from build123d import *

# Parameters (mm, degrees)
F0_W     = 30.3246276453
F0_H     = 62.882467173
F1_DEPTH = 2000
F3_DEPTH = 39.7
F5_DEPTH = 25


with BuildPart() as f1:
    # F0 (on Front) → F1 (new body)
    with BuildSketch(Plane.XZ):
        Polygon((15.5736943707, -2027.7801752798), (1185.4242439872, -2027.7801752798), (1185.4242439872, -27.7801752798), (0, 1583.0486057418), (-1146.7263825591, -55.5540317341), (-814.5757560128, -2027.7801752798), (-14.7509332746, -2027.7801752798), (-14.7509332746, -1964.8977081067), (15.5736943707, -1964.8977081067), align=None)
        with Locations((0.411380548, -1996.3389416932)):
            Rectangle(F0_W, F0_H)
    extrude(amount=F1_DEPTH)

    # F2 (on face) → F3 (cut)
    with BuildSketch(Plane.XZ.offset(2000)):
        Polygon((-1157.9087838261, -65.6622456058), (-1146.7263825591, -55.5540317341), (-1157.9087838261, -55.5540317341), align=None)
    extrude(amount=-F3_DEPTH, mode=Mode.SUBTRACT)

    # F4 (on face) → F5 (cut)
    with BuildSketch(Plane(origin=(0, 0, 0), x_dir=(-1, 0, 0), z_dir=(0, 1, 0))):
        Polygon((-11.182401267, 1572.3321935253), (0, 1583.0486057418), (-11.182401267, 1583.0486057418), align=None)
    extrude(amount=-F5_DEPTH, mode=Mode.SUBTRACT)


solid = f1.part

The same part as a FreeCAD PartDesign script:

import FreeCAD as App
import Part
import Sketcher
from FreeCAD import Vector
Q = App.Units.Quantity

doc = App.newDocument("Part")
body = doc.addObject("PartDesign::Body", "Body")

# Sketch on XZ plane
sketch1 = body.newObject("Sketcher::SketchObject", "Sketch")
sketch1.AttachmentSupport = (doc.getObject("XZ_Plane"), [""])
sketch1.MapMode = "FlatFace"
sketch1.addGeometry(Part.LineSegment(Vector(1185, -2028, 0), Vector(1185, -28, 0)), False)
sketch1.addGeometry(Part.LineSegment(Vector(1185, -28, 0), Vector(0, 1583, 0)), False)
sketch1.addGeometry(Part.LineSegment(Vector(0, 1583, 0), Vector(-1147, -56, 0)), False)
sketch1.addGeometry(Part.LineSegment(Vector(-1147, -56, 0), Vector(-815, -2028, 0)), False)
sketch1.addGeometry(Part.LineSegment(Vector(-815, -2028, 0), Vector(1185, -2028, 0)), False)
sketch1.addConstraint(Sketcher.Constraint("Coincident", 0, 2, 1, 1))
sketch1.addConstraint(Sketcher.Constraint("Coincident", 1, 2, 2, 1))
sketch1.addConstraint(Sketcher.Constraint("Coincident", 2, 2, 3, 1))
sketch1.addConstraint(Sketcher.Constraint("Coincident", 3, 2, 4, 1))
sketch1.addConstraint(Sketcher.Constraint("Coincident", 4, 2, 0, 1))
sketch1.addConstraint(Sketcher.Constraint("Vertical", 0))
sketch1.addConstraint(Sketcher.Constraint("Horizontal", 4))
sketch1.addConstraint(Sketcher.Constraint("PointOnObject", 1, 2, -2))
sketch1.addConstraint(Sketcher.Constraint("Equal", 4, 0))
sketch1.addConstraint(Sketcher.Constraint("Equal", 1, 2))
sketch1.addConstraint(Sketcher.Constraint("Equal", 2, 3))
sketch1.addConstraint(Sketcher.Constraint("DistanceX", 4, 1, 4, 2, Q("2000 mm")))
sketch1.addConstraint(Sketcher.Constraint("Distance", 1, Q("2000 mm")))
sketch1.addConstraint(Sketcher.Constraint("DistanceY", 2, 2, -1, 1, Q("55.554032 mm")))
sketch1.addConstraint(Sketcher.Constraint("DistanceY", 0, 2, 1, 2, Q("1610.828781 mm")))
pad1 = body.newObject("PartDesign::Pad", "Pad")
pad1.Profile = sketch1
pad1.Length = 2000

# Sketch on XZ plane
sketch2 = body.newObject("Sketcher::SketchObject", "Sketch001")
sketch2.AttachmentSupport = (doc.getObject("XZ_Plane"), [""])
sketch2.MapMode = "FlatFace"
sketch2.AttachmentOffset = App.Placement(Vector(0, 0, 2000), App.Rotation())
sketch2.addGeometry(Part.LineSegment(Vector(-1158, -66, 0), Vector(-1147, -56, 0)), False)
sketch2.addGeometry(Part.LineSegment(Vector(-1147, -56, 0), Vector(-1158, -56, 0)), False)
sketch2.addGeometry(Part.LineSegment(Vector(-1158, -56, 0), Vector(-1158, -66, 0)), False)
sketch2.addConstraint(Sketcher.Constraint("Coincident", 0, 2, 1, 1))
sketch2.addConstraint(Sketcher.Constraint("Coincident", 1, 2, 2, 1))
sketch2.addConstraint(Sketcher.Constraint("Coincident", 2, 2, 0, 1))
sketch2.addConstraint(Sketcher.Constraint("Horizontal", 1))
sketch2.addConstraint(Sketcher.Constraint("Vertical", 2))
sketch2.addConstraint(Sketcher.Constraint("DistanceX", 1, 2, 1, 1, Q("11.182401 mm")))
sketch2.addConstraint(Sketcher.Constraint("DistanceY", 2, 2, 2, 1, Q("10.108214 mm")))
sketch2.addConstraint(Sketcher.Constraint("DistanceY", 0, 2, -1, 1, Q("55.554032 mm")))
sketch2.addConstraint(Sketcher.Constraint("DistanceX", 0, 2, -1, 1, Q("1146.726383 mm")))
pocket1 = body.newObject("PartDesign::Pocket", "Pocket")
pocket1.Profile = sketch2
pocket1.Length = 39.7

# Sketch on XZ plane
sketch3 = body.newObject("Sketcher::SketchObject", "Sketch002")
sketch3.AttachmentSupport = (doc.getObject("XZ_Plane"), [""])
sketch3.MapMode = "FlatFace"
sketch3.addGeometry(Part.LineSegment(Vector(11, 1572, 0), Vector(0, 1583, 0)), False)
sketch3.addGeometry(Part.LineSegment(Vector(0, 1583, 0), Vector(11, 1583, 0)), False)
sketch3.addGeometry(Part.LineSegment(Vector(11, 1583, 0), Vector(11, 1572, 0)), False)
sketch3.addConstraint(Sketcher.Constraint("Coincident", 0, 2, 1, 1))
sketch3.addConstraint(Sketcher.Constraint("Coincident", 1, 2, 2, 1))
sketch3.addConstraint(Sketcher.Constraint("Coincident", 2, 2, 0, 1))
sketch3.addConstraint(Sketcher.Constraint("Horizontal", 1))
sketch3.addConstraint(Sketcher.Constraint("Vertical", 2))
sketch3.addConstraint(Sketcher.Constraint("PointOnObject", 0, 2, -2))
sketch3.addConstraint(Sketcher.Constraint("DistanceX", 1, 1, 1, 2, Q("11.182401 mm")))
sketch3.addConstraint(Sketcher.Constraint("DistanceY", 2, 2, 2, 1, Q("10.716412 mm")))
sketch3.addConstraint(Sketcher.Constraint("DistanceY", -1, 1, 0, 2, Q("1583.048606 mm")))
pocket2 = body.newObject("PartDesign::Pocket", "Pocket001")
pocket2.Profile = sketch3
pocket2.Length = 25
pocket2.Reversed = True

doc.recompute()
